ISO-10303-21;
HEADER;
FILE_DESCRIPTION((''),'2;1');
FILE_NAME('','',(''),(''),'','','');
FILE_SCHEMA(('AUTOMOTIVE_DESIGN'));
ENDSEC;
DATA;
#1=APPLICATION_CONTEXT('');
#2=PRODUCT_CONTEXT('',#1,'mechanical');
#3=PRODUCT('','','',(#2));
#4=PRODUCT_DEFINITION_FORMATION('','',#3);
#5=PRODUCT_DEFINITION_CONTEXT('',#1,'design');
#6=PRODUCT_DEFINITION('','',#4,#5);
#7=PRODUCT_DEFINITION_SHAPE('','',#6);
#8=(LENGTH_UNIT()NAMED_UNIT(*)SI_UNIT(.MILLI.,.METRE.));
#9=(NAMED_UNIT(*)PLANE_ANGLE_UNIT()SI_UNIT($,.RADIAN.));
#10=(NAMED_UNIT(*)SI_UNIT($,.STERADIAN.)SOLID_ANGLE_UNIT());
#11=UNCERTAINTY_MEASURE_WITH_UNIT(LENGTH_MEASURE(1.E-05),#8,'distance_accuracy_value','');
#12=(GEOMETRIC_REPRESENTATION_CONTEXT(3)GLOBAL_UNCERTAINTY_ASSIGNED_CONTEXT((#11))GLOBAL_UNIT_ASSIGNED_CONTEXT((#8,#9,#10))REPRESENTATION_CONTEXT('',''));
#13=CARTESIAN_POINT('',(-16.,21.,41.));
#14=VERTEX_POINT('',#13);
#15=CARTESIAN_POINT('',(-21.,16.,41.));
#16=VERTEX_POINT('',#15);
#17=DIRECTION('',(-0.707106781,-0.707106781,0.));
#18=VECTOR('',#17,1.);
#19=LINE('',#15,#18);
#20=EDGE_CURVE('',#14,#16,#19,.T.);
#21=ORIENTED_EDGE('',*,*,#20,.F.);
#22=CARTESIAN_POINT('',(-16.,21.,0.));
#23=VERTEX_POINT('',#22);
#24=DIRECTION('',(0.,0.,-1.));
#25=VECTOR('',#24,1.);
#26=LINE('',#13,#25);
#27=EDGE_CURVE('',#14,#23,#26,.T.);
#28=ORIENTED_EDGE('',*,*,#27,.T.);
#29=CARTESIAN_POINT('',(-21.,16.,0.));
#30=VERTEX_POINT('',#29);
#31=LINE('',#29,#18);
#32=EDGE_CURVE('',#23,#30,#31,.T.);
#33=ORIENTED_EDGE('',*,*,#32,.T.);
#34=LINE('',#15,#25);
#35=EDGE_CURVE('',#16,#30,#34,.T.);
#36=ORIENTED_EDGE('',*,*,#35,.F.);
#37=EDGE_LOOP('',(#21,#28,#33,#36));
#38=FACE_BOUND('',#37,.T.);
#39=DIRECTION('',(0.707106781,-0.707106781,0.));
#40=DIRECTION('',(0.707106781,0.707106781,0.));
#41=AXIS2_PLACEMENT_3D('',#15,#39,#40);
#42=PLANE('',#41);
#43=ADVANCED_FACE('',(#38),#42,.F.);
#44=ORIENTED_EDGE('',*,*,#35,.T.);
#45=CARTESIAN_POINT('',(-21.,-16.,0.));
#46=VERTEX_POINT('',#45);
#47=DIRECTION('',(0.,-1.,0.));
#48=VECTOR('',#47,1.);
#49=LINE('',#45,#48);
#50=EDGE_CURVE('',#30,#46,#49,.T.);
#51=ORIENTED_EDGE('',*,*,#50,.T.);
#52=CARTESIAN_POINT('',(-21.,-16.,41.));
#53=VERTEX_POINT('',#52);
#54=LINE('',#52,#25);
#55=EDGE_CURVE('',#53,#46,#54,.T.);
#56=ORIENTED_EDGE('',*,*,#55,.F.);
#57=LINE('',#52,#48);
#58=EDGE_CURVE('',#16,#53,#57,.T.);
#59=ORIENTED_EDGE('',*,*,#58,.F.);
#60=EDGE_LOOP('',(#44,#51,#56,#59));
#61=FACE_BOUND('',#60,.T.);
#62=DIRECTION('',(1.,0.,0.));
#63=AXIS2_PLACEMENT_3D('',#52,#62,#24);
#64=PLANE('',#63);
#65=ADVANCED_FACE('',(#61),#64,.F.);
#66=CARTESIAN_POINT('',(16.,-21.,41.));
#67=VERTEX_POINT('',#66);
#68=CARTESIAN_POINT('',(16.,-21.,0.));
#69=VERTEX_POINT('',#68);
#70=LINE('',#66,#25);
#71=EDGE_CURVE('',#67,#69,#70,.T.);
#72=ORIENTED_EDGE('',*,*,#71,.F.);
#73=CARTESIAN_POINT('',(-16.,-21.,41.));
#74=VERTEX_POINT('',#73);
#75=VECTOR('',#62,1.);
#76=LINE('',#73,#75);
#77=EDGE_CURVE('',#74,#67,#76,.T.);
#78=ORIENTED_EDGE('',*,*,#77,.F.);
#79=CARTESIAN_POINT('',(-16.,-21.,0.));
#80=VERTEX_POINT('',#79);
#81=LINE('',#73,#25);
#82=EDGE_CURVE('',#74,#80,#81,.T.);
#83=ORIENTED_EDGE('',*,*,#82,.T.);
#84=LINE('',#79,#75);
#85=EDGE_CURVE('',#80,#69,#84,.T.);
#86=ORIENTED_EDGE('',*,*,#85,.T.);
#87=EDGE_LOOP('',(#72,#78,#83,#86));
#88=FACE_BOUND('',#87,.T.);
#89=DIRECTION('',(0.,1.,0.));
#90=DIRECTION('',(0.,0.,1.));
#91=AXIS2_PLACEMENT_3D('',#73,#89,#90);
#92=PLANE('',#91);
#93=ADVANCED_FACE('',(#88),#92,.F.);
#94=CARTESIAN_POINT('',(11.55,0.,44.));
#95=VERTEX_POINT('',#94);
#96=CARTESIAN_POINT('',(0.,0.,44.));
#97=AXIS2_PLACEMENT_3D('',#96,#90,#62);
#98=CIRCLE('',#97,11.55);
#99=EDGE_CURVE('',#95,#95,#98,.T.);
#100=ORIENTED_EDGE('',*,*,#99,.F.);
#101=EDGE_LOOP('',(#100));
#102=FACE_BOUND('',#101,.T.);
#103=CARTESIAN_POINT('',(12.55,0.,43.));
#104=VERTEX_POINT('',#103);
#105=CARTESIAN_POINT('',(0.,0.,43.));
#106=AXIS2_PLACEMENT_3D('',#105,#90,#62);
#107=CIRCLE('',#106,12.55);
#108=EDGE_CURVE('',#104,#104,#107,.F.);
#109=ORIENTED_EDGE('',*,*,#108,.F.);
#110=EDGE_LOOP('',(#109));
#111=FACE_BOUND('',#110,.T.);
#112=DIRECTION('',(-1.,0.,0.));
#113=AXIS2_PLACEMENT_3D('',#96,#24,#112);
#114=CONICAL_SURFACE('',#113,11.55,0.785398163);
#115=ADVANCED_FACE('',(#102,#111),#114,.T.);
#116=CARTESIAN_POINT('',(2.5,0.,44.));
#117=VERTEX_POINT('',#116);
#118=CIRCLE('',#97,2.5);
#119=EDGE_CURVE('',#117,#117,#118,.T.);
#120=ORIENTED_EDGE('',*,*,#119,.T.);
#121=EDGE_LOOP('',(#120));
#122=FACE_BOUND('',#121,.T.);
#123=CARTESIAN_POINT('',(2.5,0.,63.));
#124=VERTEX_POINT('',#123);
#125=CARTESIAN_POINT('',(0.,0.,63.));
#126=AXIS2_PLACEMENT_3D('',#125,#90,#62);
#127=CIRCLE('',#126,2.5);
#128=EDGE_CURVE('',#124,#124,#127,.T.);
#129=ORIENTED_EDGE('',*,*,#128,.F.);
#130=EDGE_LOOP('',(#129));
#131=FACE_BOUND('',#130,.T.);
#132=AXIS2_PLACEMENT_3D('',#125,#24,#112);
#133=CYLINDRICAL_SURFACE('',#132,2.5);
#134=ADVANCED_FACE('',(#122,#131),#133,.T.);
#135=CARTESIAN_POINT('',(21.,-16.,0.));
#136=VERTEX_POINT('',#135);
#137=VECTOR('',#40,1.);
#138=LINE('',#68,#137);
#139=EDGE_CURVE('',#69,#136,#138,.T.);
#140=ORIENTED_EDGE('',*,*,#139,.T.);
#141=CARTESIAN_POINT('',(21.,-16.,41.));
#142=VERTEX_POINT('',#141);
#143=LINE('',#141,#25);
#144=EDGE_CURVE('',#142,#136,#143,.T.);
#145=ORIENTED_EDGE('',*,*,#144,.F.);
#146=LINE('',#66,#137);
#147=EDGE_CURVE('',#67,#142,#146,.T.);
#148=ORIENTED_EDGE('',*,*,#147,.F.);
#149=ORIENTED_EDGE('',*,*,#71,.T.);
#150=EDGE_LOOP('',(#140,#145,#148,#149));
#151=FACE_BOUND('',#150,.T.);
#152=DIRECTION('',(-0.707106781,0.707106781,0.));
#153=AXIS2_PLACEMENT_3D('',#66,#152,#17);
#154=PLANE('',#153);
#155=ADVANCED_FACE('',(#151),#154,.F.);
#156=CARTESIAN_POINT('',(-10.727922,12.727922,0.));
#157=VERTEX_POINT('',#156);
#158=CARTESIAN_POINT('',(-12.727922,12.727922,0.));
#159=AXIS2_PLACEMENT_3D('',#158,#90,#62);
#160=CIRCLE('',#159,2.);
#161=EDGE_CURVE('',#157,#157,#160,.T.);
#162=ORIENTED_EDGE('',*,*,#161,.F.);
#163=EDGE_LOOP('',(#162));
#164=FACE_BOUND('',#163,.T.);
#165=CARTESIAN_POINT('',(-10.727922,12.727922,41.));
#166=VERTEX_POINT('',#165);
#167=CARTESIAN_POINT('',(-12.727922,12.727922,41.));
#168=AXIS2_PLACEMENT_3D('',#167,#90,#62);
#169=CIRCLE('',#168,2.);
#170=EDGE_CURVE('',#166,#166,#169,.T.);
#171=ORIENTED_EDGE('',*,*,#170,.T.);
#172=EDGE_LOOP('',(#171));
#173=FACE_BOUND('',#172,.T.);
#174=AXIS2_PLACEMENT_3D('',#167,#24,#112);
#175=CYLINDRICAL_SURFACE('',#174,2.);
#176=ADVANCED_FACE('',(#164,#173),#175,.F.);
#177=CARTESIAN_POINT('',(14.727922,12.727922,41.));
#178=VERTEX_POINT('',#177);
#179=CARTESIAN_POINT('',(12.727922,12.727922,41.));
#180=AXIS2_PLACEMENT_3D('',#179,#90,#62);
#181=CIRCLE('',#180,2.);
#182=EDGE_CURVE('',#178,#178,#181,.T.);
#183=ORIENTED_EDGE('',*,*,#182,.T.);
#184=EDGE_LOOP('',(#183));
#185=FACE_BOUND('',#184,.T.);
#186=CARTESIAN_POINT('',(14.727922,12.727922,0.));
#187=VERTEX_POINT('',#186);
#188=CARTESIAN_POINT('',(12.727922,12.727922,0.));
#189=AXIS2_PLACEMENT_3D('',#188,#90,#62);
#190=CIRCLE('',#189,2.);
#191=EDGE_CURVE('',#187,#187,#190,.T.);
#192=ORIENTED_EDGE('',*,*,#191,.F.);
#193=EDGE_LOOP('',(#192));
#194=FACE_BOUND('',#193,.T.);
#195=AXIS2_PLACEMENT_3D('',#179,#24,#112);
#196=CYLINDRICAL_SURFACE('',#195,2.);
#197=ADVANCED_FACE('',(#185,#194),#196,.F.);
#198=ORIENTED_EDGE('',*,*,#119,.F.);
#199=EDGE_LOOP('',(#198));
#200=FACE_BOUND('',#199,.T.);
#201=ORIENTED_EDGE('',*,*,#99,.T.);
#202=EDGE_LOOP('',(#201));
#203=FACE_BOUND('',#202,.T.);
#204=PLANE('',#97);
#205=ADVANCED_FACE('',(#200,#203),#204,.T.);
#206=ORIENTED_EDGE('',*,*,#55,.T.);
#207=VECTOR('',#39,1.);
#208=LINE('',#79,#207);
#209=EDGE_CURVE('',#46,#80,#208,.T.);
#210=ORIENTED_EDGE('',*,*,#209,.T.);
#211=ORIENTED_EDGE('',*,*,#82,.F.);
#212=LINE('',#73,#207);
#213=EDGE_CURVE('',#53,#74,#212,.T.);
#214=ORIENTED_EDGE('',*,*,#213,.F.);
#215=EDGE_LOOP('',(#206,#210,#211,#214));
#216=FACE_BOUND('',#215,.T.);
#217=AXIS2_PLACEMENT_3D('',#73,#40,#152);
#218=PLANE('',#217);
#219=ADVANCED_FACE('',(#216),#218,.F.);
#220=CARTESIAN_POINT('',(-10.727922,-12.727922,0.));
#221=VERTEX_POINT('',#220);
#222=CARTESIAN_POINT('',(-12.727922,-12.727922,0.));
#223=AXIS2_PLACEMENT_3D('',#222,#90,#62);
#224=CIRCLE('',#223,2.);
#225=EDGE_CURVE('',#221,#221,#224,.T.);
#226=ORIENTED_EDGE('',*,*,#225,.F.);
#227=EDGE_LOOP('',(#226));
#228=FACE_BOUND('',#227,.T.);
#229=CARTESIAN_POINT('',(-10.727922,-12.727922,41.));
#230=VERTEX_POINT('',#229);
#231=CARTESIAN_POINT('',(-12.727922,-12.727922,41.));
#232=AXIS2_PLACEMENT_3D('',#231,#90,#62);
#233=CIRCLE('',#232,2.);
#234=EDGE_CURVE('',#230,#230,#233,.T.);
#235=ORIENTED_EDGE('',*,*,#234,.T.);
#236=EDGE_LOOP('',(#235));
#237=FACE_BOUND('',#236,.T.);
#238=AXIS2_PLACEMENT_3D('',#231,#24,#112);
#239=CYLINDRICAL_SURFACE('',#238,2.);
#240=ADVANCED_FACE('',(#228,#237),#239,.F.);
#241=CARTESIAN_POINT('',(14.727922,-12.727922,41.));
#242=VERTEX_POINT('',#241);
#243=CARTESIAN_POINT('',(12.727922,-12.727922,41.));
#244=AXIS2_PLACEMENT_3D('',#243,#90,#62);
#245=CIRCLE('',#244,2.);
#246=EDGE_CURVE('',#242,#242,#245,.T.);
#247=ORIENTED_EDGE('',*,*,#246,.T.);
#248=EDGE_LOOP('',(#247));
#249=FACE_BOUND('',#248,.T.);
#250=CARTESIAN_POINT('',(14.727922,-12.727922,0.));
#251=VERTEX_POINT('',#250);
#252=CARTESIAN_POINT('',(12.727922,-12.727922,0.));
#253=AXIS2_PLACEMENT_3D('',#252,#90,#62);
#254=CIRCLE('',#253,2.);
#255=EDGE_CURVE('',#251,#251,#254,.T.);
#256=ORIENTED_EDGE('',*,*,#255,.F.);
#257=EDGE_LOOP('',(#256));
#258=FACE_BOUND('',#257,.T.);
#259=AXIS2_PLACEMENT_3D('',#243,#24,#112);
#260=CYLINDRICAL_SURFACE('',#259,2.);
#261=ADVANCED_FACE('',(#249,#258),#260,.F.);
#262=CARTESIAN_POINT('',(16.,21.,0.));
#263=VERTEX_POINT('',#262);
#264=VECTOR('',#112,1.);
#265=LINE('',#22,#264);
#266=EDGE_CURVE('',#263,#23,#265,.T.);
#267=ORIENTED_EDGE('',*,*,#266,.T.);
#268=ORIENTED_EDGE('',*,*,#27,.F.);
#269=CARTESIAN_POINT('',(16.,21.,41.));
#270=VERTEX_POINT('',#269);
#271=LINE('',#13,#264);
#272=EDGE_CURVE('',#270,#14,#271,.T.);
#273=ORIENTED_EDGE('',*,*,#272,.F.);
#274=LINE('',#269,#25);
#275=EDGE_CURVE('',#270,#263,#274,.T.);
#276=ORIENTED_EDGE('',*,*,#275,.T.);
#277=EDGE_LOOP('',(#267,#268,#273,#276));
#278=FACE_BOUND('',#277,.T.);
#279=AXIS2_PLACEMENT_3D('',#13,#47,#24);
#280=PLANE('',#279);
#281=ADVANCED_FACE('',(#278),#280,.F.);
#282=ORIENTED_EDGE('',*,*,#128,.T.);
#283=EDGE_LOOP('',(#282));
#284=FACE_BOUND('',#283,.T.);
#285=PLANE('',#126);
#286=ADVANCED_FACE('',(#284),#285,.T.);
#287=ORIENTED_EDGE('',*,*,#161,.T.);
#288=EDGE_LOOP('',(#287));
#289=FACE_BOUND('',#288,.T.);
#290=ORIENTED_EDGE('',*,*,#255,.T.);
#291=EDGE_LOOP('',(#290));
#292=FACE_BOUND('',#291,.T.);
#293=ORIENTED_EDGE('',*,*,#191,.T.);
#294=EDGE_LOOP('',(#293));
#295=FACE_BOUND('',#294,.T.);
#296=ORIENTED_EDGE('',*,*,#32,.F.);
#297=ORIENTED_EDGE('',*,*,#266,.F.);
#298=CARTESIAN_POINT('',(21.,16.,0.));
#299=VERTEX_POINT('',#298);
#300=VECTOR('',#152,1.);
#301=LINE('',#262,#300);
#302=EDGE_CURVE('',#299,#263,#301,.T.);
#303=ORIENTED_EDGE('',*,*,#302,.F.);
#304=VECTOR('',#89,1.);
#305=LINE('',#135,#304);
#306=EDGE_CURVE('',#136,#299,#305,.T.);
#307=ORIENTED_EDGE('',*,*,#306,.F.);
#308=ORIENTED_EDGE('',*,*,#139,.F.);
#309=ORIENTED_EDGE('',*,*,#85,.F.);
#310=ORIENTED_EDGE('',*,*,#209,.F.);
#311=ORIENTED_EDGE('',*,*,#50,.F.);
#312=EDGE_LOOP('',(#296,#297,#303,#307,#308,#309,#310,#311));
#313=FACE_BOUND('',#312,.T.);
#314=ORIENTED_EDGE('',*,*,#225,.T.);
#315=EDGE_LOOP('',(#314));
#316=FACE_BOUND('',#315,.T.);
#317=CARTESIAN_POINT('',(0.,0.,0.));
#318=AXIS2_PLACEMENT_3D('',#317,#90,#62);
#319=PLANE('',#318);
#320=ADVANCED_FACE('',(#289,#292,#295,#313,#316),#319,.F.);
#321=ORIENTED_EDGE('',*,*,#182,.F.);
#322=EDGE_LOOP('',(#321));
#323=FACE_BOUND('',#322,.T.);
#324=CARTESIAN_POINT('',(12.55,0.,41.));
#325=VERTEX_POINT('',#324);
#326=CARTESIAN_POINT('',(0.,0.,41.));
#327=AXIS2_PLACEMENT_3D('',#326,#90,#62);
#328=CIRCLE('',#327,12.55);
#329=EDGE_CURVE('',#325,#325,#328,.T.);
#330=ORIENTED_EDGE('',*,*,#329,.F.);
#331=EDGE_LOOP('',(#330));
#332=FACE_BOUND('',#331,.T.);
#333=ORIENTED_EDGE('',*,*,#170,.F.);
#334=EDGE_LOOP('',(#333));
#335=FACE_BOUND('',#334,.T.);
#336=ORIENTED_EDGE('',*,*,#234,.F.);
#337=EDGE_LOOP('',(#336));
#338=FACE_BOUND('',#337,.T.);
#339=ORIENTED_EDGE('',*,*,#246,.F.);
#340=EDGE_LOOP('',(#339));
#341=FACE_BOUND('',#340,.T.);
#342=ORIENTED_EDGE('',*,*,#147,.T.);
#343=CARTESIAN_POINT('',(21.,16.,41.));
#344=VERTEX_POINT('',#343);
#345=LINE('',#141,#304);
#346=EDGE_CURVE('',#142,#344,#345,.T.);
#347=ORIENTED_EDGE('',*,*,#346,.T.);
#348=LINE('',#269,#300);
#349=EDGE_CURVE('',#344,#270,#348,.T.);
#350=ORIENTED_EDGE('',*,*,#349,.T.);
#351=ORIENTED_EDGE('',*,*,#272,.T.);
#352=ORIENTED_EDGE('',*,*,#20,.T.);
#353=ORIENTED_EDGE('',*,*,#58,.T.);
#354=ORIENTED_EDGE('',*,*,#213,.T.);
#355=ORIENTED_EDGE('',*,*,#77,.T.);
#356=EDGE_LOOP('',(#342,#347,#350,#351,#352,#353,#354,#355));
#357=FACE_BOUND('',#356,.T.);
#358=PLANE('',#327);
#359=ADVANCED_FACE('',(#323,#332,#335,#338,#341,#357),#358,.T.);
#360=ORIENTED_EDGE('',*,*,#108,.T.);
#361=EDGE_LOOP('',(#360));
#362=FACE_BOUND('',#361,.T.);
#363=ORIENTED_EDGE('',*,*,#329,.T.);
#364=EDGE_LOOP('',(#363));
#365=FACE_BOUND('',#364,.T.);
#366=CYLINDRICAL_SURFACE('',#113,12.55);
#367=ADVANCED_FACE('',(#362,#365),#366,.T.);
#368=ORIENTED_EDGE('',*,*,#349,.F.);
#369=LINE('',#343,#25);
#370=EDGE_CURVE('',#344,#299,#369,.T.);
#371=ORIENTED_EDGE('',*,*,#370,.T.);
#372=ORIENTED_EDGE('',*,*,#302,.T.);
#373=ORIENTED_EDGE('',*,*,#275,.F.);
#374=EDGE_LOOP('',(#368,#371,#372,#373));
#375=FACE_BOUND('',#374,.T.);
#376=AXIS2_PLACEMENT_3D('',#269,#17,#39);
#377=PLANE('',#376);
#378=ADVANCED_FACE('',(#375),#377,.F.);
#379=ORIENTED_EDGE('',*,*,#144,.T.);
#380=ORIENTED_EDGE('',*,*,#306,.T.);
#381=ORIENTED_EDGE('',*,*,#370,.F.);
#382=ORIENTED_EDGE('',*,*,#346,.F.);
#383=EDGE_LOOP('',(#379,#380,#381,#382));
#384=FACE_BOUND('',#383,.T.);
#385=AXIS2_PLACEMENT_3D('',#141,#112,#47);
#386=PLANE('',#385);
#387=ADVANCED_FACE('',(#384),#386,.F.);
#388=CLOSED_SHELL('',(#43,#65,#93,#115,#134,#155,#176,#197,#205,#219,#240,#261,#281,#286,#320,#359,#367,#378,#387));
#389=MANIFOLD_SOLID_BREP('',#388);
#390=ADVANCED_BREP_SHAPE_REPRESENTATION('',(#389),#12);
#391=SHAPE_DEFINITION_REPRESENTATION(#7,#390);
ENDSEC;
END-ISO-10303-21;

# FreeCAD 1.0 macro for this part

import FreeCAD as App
import Part
import Sketcher
from FreeCAD import Vector


def edges_at(feature, points):
    """Names of the edges that pass closest to the given points."""
    edges = feature.Shape.Edges
    near = lambda p: min(range(len(edges)), key=lambda i: edges[i].distToShape(Part.Vertex(*p))[0])
    return sorted({f"Edge{near(p) + 1}" for p in points})


def add_polygon(sketch, points):
    """Adds a closed chain of lines whose ends are joined by coincident constraints."""
    first, n = sketch.GeometryCount, len(points)
    for a, b in zip(points, points[1:] + points[:1]):
        sketch.addGeometry(Part.LineSegment(App.Vector(*a, 0), App.Vector(*b, 0)), False)
    for i in range(n):
        sketch.addConstraint(Sketcher.Constraint("Coincident", first + i, 2, first + (i + 1) % n, 1))

doc = App.newDocument("Part")
body = doc.addObject("PartDesign::Body", "Body")

# Sketch on XY plane
sketch1 = body.newObject("Sketcher::SketchObject", "Sketch")
sketch1.AttachmentSupport = (doc.getObject("XY_Plane"), [""])
sketch1.MapMode = "FlatFace"
add_polygon(sketch1, [(-16, 21), (-21, 16), (-21, -16), (-16, -21), (16, -21), (21, -16), (21, 16), (16, 21)])  # lines 0-7
sketch1.addGeometry(Part.Circle(Vector(12.7, -12.7, 0), Vector(0, 0, 1), 2), False)  # 8
sketch1.addGeometry(Part.Circle(Vector(-12.7, -12.7, 0), Vector(0, 0, 1), 2), False)  # 9
sketch1.addGeometry(Part.Circle(Vector(12.7, 12.7, 0), Vector(0, 0, 1), 2), False)  # 10
sketch1.addGeometry(Part.Circle(Vector(-12.7, 12.7, 0), Vector(0, 0, 1), 2), False)  # 11
sketch1.addConstraint([
    Sketcher.Constraint("Vertical", 1),
    Sketcher.Constraint("Horizontal", 3),
    Sketcher.Constraint("Vertical", 5),
    Sketcher.Constraint("Horizontal", 7),
    Sketcher.Constraint("Equal", 8, 9),
    Sketcher.Constraint("Equal", 9, 10),
    Sketcher.Constraint("Equal", 10, 11),
    Sketcher.Constraint("Symmetric", 9, 3, 10, 3, -1, 1),
    Sketcher.Constraint("Symmetric", 8, 3, 11, 3, -1, 1),
    Sketcher.Constraint("Symmetric", 0, 2, 4, 2, -1, 1),
    Sketcher.Constraint("Symmetric", 2, 2, 6, 2, -1, 1),
    Sketcher.Constraint("Symmetric", 8, 3, 9, 3, -2),
    Sketcher.Constraint("Perpendicular", 0, 2),
    Sketcher.Constraint("Perpendicular", 2, 4),
    Sketcher.Constraint("Perpendicular", 4, 6),
    Sketcher.Constraint("Horizontal", 1, 2, 4, 2),
    Sketcher.Constraint("Vertical", 3, 2, 6, 2),
    Sketcher.Constraint("Equal", 7, 1),
    Sketcher.Constraint("Diameter", 8, 4.0),
    Sketcher.Constraint("DistanceX", 3, 1, 3, 2, 32.0),
    Sketcher.Constraint("DistanceX", 0, 2, -1, 1, 21.0),
    Sketcher.Constraint("DistanceX", -1, 1, 8, 3, 12.727922),
    Sketcher.Constraint("DistanceY", 8, 3, -1, 1, 12.727922),
])
pad1 = body.newObject("PartDesign::Pad", "Pad")
pad1.Profile = sketch1
pad1.Length = 41

# Sketch on XY plane
sketch2 = body.newObject("Sketcher::SketchObject", "Sketch001")
sketch2.AttachmentSupport = (doc.getObject("XY_Plane"), [""])
sketch2.MapMode = "FlatFace"
sketch2.AttachmentOffset = App.Placement(Vector(0, 0, 41), App.Rotation())
sketch2.addGeometry(Part.Circle(Vector(0, 0, 0), Vector(0, 0, 1), 13), False)
sketch2.addConstraint([
    Sketcher.Constraint("Coincident", 0, 3, -1, 1),
    Sketcher.Constraint("Diameter", 0, 25.1),
])
pad2 = body.newObject("PartDesign::Pad", "Pad001")
pad2.Profile = sketch2
pad2.Length = 3

# Sketch on XY plane
sketch3 = body.newObject("Sketcher::SketchObject", "Sketch002")
sketch3.AttachmentSupport = (doc.getObject("XY_Plane"), [""])
sketch3.MapMode = "FlatFace"
sketch3.AttachmentOffset = App.Placement(Vector(0, 0, 44), App.Rotation())
sketch3.addGeometry(Part.Circle(Vector(0, 0, 0), Vector(0, 0, 1), 2.5), False)
sketch3.addConstraint([
    Sketcher.Constraint("Coincident", 0, 3, -1, 1),
    Sketcher.Constraint("Diameter", 0, 5.0),
])
pad3 = body.newObject("PartDesign::Pad", "Pad002")
pad3.Profile = sketch3
pad3.Length = 19
doc.recompute()

chamfer = body.newObject("PartDesign::Chamfer", "Chamfer")
chamfer.Base = (pad3, edges_at(pad3, [(-12.55, 0, 44)]))
chamfer.Size = 1

doc.recompute()
